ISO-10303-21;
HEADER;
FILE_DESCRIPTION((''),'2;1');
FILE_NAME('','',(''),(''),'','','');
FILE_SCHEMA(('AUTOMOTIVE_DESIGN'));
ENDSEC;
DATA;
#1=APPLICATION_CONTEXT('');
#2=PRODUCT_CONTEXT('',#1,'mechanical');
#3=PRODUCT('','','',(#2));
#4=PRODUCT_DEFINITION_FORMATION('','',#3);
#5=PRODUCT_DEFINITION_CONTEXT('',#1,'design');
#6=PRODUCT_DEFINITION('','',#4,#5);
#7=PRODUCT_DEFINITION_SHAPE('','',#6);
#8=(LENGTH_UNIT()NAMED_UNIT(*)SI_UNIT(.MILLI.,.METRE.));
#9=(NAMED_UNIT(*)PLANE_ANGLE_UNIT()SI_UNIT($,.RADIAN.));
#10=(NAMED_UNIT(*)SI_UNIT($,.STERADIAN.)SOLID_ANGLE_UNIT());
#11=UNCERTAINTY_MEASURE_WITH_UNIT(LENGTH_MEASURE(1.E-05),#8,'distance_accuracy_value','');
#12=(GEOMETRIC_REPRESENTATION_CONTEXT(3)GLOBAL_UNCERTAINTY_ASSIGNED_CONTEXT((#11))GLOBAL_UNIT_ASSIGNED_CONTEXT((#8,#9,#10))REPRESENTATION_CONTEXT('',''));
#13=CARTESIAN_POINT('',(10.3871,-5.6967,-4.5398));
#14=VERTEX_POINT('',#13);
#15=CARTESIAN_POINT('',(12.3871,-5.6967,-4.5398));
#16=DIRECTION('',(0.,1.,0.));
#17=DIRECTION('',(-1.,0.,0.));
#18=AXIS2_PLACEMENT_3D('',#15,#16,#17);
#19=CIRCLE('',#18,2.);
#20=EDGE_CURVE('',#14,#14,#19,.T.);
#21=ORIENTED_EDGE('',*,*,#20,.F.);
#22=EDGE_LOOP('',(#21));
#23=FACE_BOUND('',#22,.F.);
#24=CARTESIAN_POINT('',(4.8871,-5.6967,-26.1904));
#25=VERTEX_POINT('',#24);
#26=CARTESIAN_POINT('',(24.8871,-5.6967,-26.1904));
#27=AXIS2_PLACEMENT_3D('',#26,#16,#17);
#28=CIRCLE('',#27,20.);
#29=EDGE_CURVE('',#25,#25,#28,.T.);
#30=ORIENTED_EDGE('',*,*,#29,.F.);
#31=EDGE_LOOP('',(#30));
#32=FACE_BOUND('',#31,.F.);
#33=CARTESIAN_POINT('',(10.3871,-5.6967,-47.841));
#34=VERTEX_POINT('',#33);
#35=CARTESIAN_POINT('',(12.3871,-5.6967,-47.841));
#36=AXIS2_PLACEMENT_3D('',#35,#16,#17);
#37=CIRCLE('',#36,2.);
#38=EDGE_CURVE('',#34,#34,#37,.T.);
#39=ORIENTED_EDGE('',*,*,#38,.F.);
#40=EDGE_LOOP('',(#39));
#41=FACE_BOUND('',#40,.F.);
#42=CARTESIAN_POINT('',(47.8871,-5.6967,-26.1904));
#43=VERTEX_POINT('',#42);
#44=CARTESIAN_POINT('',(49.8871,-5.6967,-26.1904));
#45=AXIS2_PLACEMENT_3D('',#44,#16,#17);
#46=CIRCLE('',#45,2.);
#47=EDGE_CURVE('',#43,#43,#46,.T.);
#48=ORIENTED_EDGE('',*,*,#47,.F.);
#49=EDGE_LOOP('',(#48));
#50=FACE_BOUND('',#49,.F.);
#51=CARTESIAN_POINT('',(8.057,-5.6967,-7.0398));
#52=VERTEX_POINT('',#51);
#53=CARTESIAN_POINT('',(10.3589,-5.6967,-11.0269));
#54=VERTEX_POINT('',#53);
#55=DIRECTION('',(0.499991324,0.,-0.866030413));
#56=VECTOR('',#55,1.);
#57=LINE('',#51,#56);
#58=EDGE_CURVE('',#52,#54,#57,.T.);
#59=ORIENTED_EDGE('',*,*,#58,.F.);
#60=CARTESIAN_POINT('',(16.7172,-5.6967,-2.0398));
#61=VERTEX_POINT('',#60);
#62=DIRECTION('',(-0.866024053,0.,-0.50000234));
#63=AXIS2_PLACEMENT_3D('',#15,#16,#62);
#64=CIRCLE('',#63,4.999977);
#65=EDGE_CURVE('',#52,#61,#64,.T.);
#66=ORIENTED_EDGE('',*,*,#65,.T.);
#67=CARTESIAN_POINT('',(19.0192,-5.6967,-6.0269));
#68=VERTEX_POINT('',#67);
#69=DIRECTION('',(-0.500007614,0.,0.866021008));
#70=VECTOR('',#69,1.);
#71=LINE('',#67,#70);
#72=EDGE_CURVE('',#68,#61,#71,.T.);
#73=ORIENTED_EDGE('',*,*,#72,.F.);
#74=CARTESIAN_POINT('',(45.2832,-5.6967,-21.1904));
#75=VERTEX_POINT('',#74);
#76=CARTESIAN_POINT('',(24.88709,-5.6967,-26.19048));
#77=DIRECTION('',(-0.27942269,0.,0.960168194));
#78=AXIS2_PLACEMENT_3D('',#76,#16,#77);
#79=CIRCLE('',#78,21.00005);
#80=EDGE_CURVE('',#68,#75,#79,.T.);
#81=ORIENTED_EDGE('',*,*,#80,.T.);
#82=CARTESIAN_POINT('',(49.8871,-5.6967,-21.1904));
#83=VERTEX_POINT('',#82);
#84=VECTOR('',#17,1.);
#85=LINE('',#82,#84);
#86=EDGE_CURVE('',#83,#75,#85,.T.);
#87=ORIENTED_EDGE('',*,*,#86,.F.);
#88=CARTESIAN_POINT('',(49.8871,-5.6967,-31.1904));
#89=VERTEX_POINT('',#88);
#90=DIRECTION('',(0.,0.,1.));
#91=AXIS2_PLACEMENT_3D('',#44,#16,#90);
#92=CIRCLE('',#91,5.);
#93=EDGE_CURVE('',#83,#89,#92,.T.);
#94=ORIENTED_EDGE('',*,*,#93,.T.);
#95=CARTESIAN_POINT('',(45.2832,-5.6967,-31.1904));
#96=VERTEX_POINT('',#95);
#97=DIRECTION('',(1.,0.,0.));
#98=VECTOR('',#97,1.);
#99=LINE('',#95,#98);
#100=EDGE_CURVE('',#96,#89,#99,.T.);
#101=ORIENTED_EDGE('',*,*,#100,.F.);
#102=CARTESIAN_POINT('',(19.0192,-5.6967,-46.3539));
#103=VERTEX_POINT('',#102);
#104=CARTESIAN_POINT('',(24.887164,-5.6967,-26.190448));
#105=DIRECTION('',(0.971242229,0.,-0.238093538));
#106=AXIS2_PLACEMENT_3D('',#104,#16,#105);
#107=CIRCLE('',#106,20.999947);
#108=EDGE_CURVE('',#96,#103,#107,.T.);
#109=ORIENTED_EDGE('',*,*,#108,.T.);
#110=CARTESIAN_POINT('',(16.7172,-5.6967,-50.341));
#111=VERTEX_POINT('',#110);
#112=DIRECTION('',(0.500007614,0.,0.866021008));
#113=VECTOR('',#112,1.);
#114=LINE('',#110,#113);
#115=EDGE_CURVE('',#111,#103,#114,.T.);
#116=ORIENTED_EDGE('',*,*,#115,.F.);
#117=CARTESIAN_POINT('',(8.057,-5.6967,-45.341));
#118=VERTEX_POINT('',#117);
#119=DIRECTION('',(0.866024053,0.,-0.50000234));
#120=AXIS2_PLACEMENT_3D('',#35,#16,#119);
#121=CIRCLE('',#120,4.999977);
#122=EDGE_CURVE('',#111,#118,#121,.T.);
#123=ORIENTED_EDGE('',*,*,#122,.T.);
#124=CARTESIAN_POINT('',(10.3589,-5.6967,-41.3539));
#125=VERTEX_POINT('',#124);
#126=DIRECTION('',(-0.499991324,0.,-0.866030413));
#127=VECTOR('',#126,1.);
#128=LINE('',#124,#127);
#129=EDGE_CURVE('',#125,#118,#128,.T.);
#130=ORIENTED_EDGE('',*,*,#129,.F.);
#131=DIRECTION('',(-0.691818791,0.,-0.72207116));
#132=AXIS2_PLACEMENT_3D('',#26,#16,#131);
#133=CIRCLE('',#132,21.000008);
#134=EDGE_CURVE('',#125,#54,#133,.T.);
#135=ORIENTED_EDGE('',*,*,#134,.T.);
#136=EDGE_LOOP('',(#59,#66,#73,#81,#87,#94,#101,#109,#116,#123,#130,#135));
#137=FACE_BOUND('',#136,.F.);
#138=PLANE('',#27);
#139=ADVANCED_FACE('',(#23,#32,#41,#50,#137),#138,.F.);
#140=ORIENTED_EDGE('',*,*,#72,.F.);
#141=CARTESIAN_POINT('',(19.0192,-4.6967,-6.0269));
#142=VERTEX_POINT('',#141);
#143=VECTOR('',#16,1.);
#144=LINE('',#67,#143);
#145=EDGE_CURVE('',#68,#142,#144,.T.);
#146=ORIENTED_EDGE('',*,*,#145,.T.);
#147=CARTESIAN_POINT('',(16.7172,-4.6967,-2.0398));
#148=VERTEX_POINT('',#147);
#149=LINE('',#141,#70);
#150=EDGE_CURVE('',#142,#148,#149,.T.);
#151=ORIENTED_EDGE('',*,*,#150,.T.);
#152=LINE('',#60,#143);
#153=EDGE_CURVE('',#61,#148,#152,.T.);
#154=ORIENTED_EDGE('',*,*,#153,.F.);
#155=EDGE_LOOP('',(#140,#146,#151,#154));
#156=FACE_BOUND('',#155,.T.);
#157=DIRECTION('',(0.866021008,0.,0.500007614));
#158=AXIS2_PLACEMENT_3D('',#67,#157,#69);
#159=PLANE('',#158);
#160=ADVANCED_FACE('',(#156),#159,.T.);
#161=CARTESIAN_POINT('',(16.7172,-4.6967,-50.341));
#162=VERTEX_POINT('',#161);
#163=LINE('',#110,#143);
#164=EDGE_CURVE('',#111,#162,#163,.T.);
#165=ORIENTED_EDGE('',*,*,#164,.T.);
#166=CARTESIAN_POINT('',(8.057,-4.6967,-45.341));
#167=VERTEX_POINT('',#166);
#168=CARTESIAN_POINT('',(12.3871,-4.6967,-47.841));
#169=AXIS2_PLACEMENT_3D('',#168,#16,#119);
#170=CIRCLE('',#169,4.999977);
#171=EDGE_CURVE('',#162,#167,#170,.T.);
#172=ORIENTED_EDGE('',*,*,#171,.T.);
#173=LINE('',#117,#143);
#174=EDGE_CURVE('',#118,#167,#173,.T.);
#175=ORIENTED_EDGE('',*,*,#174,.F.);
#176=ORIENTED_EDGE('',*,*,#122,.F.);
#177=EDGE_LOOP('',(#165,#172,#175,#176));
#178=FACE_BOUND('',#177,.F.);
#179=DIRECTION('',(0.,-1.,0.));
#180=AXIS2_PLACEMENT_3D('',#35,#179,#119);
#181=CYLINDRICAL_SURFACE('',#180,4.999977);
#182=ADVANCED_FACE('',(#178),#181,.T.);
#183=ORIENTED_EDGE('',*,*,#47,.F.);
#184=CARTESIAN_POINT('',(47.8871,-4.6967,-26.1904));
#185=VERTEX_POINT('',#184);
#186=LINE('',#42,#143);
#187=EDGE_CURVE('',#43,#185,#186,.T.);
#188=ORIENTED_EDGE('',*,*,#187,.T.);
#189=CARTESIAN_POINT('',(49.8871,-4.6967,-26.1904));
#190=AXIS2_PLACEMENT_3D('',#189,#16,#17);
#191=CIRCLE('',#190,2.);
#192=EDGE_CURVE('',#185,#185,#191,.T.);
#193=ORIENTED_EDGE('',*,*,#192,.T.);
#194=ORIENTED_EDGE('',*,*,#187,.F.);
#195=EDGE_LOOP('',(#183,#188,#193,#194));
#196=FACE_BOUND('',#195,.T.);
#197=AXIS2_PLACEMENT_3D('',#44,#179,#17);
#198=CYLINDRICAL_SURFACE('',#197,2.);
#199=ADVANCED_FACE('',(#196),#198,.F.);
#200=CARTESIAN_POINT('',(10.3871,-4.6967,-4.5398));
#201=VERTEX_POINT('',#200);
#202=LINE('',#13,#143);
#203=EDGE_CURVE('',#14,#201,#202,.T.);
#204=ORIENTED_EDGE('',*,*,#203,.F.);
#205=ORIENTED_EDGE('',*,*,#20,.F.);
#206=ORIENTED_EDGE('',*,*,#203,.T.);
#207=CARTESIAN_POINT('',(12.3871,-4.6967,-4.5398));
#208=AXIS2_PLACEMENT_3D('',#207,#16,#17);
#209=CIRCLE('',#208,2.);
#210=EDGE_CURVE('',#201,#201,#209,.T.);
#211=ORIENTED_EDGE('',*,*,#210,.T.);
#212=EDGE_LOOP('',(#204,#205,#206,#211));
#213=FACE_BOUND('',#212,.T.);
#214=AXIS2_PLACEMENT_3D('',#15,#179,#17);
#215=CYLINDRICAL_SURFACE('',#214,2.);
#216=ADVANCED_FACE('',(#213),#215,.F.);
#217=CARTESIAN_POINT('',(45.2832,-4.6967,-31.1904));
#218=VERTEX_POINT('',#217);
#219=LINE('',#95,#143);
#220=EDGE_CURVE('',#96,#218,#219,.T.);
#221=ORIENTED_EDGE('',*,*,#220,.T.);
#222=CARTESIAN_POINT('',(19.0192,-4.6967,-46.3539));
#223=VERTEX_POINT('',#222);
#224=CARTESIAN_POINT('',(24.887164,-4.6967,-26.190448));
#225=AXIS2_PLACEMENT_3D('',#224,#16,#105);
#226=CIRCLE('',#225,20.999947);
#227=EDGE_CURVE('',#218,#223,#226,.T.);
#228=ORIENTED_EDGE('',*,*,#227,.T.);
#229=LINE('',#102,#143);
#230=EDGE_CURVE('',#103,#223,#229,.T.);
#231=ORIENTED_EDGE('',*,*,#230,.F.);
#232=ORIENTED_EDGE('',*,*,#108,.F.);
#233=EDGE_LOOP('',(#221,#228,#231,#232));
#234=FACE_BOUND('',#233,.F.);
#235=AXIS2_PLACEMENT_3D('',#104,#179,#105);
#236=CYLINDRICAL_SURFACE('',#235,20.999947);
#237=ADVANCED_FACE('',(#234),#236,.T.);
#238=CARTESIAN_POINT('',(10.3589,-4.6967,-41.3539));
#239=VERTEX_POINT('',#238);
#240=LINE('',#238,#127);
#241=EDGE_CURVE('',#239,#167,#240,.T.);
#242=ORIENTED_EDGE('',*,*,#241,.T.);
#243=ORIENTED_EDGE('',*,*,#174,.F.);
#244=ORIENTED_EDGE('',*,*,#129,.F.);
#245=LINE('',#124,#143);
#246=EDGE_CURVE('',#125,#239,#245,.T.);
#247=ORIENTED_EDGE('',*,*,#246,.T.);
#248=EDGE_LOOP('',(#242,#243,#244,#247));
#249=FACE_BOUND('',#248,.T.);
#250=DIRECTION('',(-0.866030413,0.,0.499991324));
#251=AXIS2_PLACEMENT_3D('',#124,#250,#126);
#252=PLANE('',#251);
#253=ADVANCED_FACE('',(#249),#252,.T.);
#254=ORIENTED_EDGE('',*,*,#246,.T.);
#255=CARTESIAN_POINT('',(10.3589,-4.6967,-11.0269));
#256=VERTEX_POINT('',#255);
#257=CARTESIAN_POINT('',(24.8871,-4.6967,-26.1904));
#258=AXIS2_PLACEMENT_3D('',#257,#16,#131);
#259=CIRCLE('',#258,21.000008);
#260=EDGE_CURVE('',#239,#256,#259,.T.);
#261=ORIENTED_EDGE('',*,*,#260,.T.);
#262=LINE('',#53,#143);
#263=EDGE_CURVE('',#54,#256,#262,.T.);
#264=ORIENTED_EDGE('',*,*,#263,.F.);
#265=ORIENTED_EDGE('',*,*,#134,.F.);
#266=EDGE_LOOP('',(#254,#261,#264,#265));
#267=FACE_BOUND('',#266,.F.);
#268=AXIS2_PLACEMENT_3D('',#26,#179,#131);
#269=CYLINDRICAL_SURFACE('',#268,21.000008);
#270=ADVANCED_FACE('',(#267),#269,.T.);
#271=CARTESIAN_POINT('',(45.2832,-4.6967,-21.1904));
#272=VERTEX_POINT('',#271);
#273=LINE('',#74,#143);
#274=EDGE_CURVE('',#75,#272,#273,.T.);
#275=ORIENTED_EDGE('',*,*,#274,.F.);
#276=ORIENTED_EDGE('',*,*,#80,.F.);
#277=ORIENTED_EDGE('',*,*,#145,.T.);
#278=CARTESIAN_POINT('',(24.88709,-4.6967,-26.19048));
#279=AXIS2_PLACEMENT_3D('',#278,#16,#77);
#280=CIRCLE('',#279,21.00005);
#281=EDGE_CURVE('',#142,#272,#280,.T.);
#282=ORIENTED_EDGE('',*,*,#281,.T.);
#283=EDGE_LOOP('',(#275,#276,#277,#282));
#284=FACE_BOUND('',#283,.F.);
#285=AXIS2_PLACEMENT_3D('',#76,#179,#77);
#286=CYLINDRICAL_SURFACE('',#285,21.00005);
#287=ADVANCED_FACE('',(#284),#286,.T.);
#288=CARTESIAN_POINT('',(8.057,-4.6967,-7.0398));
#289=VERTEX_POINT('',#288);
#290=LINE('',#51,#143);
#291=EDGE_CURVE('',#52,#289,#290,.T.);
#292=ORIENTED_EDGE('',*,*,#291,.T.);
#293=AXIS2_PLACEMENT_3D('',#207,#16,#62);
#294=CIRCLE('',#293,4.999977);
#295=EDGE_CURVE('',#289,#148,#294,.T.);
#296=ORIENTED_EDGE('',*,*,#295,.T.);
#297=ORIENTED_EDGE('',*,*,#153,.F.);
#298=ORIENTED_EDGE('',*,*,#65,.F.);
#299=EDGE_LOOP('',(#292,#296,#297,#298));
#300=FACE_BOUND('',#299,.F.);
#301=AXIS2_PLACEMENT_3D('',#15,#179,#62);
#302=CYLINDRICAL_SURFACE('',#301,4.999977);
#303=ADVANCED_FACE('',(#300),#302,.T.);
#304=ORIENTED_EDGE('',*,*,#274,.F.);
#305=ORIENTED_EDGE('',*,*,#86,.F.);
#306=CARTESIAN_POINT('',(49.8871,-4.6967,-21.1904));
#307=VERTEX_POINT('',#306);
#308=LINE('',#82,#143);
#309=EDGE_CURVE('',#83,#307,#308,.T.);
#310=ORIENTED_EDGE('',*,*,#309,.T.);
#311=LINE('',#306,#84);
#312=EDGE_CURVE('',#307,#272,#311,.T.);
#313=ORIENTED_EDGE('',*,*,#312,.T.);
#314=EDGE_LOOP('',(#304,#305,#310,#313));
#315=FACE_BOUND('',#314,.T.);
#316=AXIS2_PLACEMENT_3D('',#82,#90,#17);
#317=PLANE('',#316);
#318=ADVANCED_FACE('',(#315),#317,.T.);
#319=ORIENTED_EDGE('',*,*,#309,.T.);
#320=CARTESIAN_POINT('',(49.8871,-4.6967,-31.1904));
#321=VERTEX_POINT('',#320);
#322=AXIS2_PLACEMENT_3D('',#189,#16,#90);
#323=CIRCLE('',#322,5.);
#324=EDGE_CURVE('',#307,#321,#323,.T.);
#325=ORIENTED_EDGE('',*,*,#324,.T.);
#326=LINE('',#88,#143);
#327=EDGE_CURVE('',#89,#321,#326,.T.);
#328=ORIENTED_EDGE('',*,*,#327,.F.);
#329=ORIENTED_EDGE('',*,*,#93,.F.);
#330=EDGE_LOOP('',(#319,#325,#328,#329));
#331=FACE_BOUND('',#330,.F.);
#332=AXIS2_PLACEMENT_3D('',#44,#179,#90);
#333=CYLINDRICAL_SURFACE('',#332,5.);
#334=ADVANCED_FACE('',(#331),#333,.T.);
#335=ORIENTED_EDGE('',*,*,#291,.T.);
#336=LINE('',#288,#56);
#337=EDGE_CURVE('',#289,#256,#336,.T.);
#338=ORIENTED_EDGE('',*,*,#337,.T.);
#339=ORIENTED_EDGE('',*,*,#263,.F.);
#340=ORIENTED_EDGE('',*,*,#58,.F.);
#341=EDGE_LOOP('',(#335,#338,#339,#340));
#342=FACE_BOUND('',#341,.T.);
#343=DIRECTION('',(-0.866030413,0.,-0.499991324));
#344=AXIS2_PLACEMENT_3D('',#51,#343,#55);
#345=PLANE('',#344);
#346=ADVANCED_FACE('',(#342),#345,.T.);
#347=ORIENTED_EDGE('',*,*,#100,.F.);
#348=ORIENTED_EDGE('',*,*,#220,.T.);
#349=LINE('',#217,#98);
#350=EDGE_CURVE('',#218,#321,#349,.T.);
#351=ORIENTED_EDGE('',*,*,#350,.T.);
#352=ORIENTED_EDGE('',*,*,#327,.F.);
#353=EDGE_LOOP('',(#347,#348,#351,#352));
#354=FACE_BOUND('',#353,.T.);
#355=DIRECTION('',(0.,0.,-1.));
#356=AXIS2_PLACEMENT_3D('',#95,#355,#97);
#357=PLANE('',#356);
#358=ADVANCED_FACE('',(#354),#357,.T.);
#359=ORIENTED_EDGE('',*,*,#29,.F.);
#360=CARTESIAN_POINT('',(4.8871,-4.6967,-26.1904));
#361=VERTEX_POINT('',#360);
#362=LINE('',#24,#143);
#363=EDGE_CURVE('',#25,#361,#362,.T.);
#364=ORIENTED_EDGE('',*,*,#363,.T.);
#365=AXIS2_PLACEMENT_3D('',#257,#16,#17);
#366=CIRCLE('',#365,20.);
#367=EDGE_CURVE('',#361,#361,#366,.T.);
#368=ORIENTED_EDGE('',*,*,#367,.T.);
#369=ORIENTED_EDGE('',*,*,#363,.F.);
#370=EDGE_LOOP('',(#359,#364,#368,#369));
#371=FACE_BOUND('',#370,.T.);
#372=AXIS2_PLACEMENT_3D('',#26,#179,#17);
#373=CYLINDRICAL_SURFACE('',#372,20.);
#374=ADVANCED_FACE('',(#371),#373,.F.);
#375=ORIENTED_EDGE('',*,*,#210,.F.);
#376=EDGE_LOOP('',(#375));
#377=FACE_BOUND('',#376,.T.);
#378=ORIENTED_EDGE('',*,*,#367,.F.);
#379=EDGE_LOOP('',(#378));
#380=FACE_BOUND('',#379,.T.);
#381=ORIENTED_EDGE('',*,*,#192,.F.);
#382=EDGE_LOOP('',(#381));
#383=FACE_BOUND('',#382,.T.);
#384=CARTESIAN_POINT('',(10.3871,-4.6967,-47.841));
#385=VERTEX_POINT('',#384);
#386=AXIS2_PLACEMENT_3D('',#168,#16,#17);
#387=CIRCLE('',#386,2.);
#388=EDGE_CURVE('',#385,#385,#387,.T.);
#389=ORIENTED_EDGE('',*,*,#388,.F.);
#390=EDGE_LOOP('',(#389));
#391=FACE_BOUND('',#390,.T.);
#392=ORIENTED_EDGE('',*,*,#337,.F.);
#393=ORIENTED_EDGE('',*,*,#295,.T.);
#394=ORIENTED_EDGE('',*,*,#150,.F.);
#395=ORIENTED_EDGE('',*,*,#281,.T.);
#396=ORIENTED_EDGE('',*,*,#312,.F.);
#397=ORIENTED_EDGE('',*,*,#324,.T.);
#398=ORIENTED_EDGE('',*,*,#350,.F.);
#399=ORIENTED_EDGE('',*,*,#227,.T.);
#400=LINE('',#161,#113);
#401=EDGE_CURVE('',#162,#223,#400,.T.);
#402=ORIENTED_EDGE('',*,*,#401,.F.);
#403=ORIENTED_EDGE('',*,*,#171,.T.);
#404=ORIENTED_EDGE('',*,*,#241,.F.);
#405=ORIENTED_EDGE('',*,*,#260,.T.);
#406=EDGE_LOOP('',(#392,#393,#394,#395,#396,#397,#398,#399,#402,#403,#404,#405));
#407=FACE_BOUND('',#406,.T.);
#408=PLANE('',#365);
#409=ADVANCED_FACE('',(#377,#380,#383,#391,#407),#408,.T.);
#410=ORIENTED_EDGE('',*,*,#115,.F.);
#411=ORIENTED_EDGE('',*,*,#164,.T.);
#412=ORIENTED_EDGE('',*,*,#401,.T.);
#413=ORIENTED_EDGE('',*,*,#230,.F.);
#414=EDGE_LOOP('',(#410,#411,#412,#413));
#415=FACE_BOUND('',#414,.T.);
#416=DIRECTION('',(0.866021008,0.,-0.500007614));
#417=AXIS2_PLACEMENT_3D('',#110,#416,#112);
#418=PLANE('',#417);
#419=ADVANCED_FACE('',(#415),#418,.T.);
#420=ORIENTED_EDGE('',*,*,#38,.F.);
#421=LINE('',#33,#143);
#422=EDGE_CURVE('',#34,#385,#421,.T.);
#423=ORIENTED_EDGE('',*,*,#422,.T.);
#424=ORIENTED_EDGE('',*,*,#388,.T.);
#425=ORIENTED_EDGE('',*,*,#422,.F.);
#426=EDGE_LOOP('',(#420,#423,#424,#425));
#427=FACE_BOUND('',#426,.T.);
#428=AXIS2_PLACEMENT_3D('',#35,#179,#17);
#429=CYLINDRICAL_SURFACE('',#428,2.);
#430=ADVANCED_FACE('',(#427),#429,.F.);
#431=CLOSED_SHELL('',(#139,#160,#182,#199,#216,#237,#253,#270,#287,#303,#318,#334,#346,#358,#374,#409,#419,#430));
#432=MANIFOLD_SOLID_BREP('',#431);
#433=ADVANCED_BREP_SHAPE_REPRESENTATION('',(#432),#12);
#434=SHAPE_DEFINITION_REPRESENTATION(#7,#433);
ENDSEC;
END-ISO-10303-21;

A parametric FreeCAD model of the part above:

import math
import FreeCAD as App
import Part
import Sketcher
Q = App.Units.Quantity

doc = App.newDocument("Part")
body = doc.addObject("PartDesign::Body", "Body")

# Sketch on XZ plane
sketch1 = body.newObject("Sketcher::SketchObject", "Sketch")
sketch1.AttachmentSupport = (doc.getObject("XZ_Plane"), [""])
sketch1.MapMode = "FlatFace"
sketch1.AttachmentOffset = App.Placement(App.Vector(0, 0, 5.6967), App.Rotation())
sketch1.addGeometry([
    Part.LineSegment(App.Vector(49.9, -31.2, 0), App.Vector(45.3, -31.2, 0)),  # 0
    Part.ArcOfCircle(Part.Circle(App.Vector(24.9, -26.2, 0), App.Vector(0, 0, 1), 21), math.radians(-106), math.radians(-14)),  # 1
    Part.LineSegment(App.Vector(19, -46.4, 0), App.Vector(16.7, -50.3, 0)),  # 2
    Part.ArcOfCircle(Part.Circle(App.Vector(12.4, -47.8, 0), App.Vector(0, 0, 1), 5), math.radians(150), math.radians(330)),  # 3
    Part.LineSegment(App.Vector(8.1, -45.3, 0), App.Vector(10.4, -41.4, 0)),  # 4
    Part.ArcOfCircle(Part.Circle(App.Vector(24.9, -26.2, 0), App.Vector(0, 0, 1), 21), math.radians(134), math.radians(226)),  # 5
    Part.LineSegment(App.Vector(10.4, -11, 0), App.Vector(8.1, -7, 0)),  # 6
    Part.ArcOfCircle(Part.Circle(App.Vector(12.4, -4.5, 0), App.Vector(0, 0, 1), 5), math.radians(30), math.radians(210)),  # 7
    Part.LineSegment(App.Vector(16.7, -2, 0), App.Vector(19, -6, 0)),  # 8
    Part.ArcOfCircle(Part.Circle(App.Vector(24.9, -26.2, 0), App.Vector(0, 0, 1), 21), math.radians(14), math.radians(106)),  # 9
    Part.LineSegment(App.Vector(45.3, -21.2, 0), App.Vector(49.9, -21.2, 0)),  # 10
    Part.ArcOfCircle(Part.Circle(App.Vector(49.9, -26.2, 0), App.Vector(0, 0, 1), 5), math.radians(-90), math.radians(90)),  # 11
    Part.Circle(App.Vector(49.9, -26.2, 0), App.Vector(0, 0, 1), 2),  # 12
    Part.Circle(App.Vector(12.4, -47.8, 0), App.Vector(0, 0, 1), 2),  # 13
    Part.Circle(App.Vector(24.9, -26.2, 0), App.Vector(0, 0, 1), 20),  # 14
    Part.Circle(App.Vector(12.4, -4.5, 0), App.Vector(0, 0, 1), 2),  # 15
], False)
sketch1.addConstraint([
    Sketcher.Constraint("Coincident", 0, 2, 1, 2),
    Sketcher.Constraint("Coincident", 1, 1, 2, 1),
    Sketcher.Constraint("Tangent", 2, 2, 3, 2),
    Sketcher.Constraint("Tangent", 3, 1, 4, 1),
    Sketcher.Constraint("Coincident", 4, 2, 5, 2),
    Sketcher.Constraint("Coincident", 5, 1, 6, 1),
    Sketcher.Constraint("Tangent", 6, 2, 7, 2),
    Sketcher.Constraint("Tangent", 7, 1, 8, 1),
    Sketcher.Constraint("Coincident", 8, 2, 9, 2),
    Sketcher.Constraint("Coincident", 9, 1, 10, 1),
    Sketcher.Constraint("Tangent", 10, 2, 11, 2),
    Sketcher.Constraint("Tangent", 11, 1, 0, 1),
    Sketcher.Constraint("Horizontal", 0),
    Sketcher.Constraint("Horizontal", 10),
    Sketcher.Constraint("Coincident", 5, 3, 1, 3),
    Sketcher.Constraint("Coincident", 9, 3, 1, 3),
    Sketcher.Constraint("Coincident", 12, 3, 11, 3),
    Sketcher.Constraint("Coincident", 13, 3, 3, 3),
    Sketcher.Constraint("Coincident", 14, 3, 1, 3),
    Sketcher.Constraint("Coincident", 15, 3, 7, 3),
    Sketcher.Constraint("Equal", 1, 5),
    Sketcher.Constraint("Equal", 3, 7),
    Sketcher.Constraint("Equal", 5, 9),
    Sketcher.Constraint("Equal", 7, 11),
    Sketcher.Constraint("Equal", 12, 13),
    Sketcher.Constraint("Equal", 13, 15),
    Sketcher.Constraint("Parallel", 2, 4),
    Sketcher.Constraint("Parallel", 6, 8),
    Sketcher.Constraint("Horizontal", 9, 3, 11, 3),
    Sketcher.Constraint("Vertical", 3, 3, 7, 3),
    Sketcher.Constraint("Vertical", 4, 2, 5, 1),
    Sketcher.Constraint("Vertical", 3, 1, 6, 2),
    Sketcher.Constraint("Equal", 2, 4),
    Sketcher.Constraint("Diameter", 12, Q("4 mm")),
    Sketcher.Constraint("Diameter", 14, Q("40 mm")),
    Sketcher.Constraint("Radius", 1, Q("21 mm")),
    Sketcher.Constraint("Radius", 3, Q("5 mm")),
    Sketcher.Constraint("Angle", 2, Q("-120.0005 deg")),
    Sketcher.Constraint("DistanceX", 1, 3, 11, 3, Q("25 mm")),
    Sketcher.Constraint("DistanceX", 3, 3, 1, 3, Q("12.5 mm")),
    Sketcher.Constraint("DistanceX", -1, 1, 1, 3, Q("24.887 mm")),
    Sketcher.Constraint("DistanceY", 3, 3, -1, 1, Q("47.841 mm")),
])
pad1 = body.newObject("PartDesign::Pad", "Pad")
pad1.Profile = sketch1
pad1.Length = 1
pad1.Reversed = True

doc.recompute()
